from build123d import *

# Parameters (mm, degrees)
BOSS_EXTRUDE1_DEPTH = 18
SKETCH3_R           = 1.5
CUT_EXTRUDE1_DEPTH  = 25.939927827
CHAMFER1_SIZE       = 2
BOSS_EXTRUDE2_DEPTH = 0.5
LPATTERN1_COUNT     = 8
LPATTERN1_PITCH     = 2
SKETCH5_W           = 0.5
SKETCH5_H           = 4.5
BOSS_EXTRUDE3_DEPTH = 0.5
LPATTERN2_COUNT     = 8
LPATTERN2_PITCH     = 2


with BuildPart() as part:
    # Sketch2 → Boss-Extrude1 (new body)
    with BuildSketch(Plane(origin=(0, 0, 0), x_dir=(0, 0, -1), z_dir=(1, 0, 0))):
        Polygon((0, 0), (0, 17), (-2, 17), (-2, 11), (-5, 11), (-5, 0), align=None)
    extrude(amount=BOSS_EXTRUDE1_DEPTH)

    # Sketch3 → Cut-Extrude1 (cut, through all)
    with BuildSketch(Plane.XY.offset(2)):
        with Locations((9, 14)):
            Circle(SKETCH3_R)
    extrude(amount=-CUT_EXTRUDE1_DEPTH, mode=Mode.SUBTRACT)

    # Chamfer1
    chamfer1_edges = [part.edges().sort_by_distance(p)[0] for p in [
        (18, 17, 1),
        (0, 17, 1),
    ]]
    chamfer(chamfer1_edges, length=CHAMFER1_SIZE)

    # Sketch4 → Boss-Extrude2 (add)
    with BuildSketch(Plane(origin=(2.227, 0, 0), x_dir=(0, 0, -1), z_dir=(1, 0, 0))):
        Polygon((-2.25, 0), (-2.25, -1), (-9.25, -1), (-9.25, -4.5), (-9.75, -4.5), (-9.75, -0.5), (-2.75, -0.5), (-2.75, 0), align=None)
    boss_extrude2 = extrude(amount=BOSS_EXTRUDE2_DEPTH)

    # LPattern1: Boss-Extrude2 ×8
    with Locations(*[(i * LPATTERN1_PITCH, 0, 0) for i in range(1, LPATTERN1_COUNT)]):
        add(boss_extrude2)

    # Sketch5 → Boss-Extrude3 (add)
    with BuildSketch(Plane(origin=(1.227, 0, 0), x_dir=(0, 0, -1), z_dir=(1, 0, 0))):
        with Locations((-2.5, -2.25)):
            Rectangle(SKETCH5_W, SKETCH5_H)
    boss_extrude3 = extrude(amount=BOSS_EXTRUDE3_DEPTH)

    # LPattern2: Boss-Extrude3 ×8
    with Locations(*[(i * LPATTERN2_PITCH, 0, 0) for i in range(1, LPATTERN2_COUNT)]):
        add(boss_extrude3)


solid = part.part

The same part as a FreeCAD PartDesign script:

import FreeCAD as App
import Part
import Sketcher
Q = App.Units.Quantity


def edges_at(feature, points):
    """Names of the edges that pass closest to the given points."""
    edges = feature.Shape.Edges
    near = lambda p: min(range(len(edges)), key=lambda i: edges[i].distToShape(Part.Vertex(*p))[0])
    return sorted({f"Edge{near(p) + 1}" for p in points})


def add_polygon(sketch, points):
    """Adds a closed chain of lines whose ends are joined by coincident constraints."""
    first, n = sketch.GeometryCount, len(points)
    for a, b in zip(points, points[1:] + points[:1]):
        sketch.addGeometry(Part.LineSegment(App.Vector(*a, 0), App.Vector(*b, 0)), False)
    for i in range(n):
        sketch.addConstraint(Sketcher.Constraint("Coincident", first + i, 2, first + (i + 1) % n, 1))

doc = App.newDocument("Part")
body = doc.addObject("PartDesign::Body", "Body")

sketch1 = body.newObject("Sketcher::SketchObject", "Sketch")
sketch1.AttachmentSupport = (doc.getObject("YZ_Plane"), [""])
sketch1.MapMode = "FlatFace"
add_polygon(sketch1, [(0, 0), (17, 0), (17, 2), (11, 2), (11, 5), (0, 5)])
sketch1.addConstraint(Sketcher.Constraint("Horizontal", 0))
sketch1.addConstraint(Sketcher.Constraint("Vertical", 1))
sketch1.addConstraint(Sketcher.Constraint("Horizontal", 2))
sketch1.addConstraint(Sketcher.Constraint("Vertical", 3))
sketch1.addConstraint(Sketcher.Constraint("Horizontal", 4))
sketch1.addConstraint(Sketcher.Constraint("Vertical", 5))
sketch1.addConstraint(Sketcher.Constraint("Coincident", 5, 2, -1, 1))
sketch1.addConstraint(Sketcher.Constraint("DistanceX", 0, 1, 0, 2, Q("17 mm")))
sketch1.addConstraint(Sketcher.Constraint("DistanceX", 2, 2, 2, 1, Q("6 mm")))
sketch1.addConstraint(Sketcher.Constraint("DistanceY", 1, 1, 1, 2, Q("2 mm")))
sketch1.addConstraint(Sketcher.Constraint("DistanceY", 3, 1, 3, 2, Q("3 mm")))
pad1 = body.newObject("PartDesign::Pad", "Pad")
pad1.Profile = sketch1
pad1.Length = 18

sketch2 = body.newObject("Sketcher::SketchObject", "Sketch001")
sketch2.AttachmentSupport = (doc.getObject("XY_Plane"), [""])
sketch2.MapMode = "FlatFace"
sketch2.AttachmentOffset = App.Placement(App.Vector(0, 0, 2), App.Rotation())
sketch2.addGeometry(Part.Circle(App.Vector(9, 14, 0), App.Vector(0, 0, 1), 1.5), False)
sketch2.addConstraint(Sketcher.Constraint("Diameter", 0, Q("3 mm")))
sketch2.addConstraint(Sketcher.Constraint("DistanceX", -1, 1, 0, 3, Q("9 mm")))
sketch2.addConstraint(Sketcher.Constraint("DistanceY", -1, 1, 0, 3, Q("14 mm")))
pocket1 = body.newObject("PartDesign::Pocket", "Pocket")
pocket1.Profile = sketch2
pocket1.Type = "ThroughAll"
doc.recompute()

chamfer = body.newObject("PartDesign::Chamfer", "Chamfer")
chamfer.Base = (pocket1, edges_at(pocket1, [(18, 17, 1), (0, 17, 1)]))
chamfer.Size = 2

sketch3 = body.newObject("Sketcher::SketchObject", "Sketch002")
sketch3.AttachmentSupport = (doc.getObject("YZ_Plane"), [""])
sketch3.MapMode = "FlatFace"
sketch3.AttachmentOffset = App.Placement(App.Vector(0, 0, 2.227), App.Rotation())
add_polygon(sketch3, [(-1, 2.25), (0, 2.25), (0, 2.75), (-0.5, 2.75), (-0.5, 9.75), (-4.5, 9.75), (-4.5, 9.25), (-1, 9.25)])
sketch3.addConstraint(Sketcher.Constraint("Horizontal", 0))
sketch3.addConstraint(Sketcher.Constraint("Vertical", 1))
sketch3.addConstraint(Sketcher.Constraint("Horizontal", 2))
sketch3.addConstraint(Sketcher.Constraint("Vertical", 3))
sketch3.addConstraint(Sketcher.Constraint("Horizontal", 4))
sketch3.addConstraint(Sketcher.Constraint("Vertical", 5))
sketch3.addConstraint(Sketcher.Constraint("Horizontal", 6))
sketch3.addConstraint(Sketcher.Constraint("Vertical", 7))
sketch3.addConstraint(Sketcher.Constraint("PointOnObject", 0, 2, -2))
sketch3.addConstraint(Sketcher.Constraint("Equal", 2, 1))
sketch3.addConstraint(Sketcher.Constraint("Equal", 1, 5))
sketch3.addConstraint(Sketcher.Constraint("DistanceX", 0, 1, 0, 2, Q("1 mm")))
sketch3.addConstraint(Sketcher.Constraint("DistanceX", 4, 2, 4, 1, Q("4 mm")))
sketch3.addConstraint(Sketcher.Constraint("DistanceY", 3, 1, 3, 2, Q("7 mm")))
sketch3.addConstraint(Sketcher.Constraint("DistanceX", 2, 2, 2, 1, Q("0.5 mm")))
sketch3.addConstraint(Sketcher.Constraint("DistanceY", -1, 1, 0, 2, Q("2.25 mm")))
pad2 = body.newObject("PartDesign::Pad", "Pad001")
pad2.Profile = sketch3
pad2.Length = 0.5
doc.recompute()

linearpattern = body.newObject("PartDesign::LinearPattern", "LinearPattern")
linearpattern.Originals = [pad2]
linearpattern.Direction = (doc.getObject("X_Axis"), [""])
linearpattern.Mode = "offset"
linearpattern.Offset = 2
linearpattern.Occurrences = 8
body.Tip = linearpattern

sketch4 = body.newObject("Sketcher::SketchObject", "Sketch003")
sketch4.AttachmentSupport = (doc.getObject("YZ_Plane"), [""])
sketch4.MapMode = "FlatFace"
sketch4.AttachmentOffset = App.Placement(App.Vector(0, 0, 1.227), App.Rotation())
add_polygon(sketch4, [(0, 2.75), (-4.5, 2.75), (-4.5, 2.25), (0, 2.25)])
sketch4.addConstraint(Sketcher.Constraint("Horizontal", 0))
sketch4.addConstraint(Sketcher.Constraint("Vertical", 1))
sketch4.addConstraint(Sketcher.Constraint("Horizontal", 2))
sketch4.addConstraint(Sketcher.Constraint("Vertical", 3))
sketch4.addConstraint(Sketcher.Constraint("PointOnObject", 2, 2, -2))
sketch4.addConstraint(Sketcher.Constraint("DistanceX", 0, 2, 0, 1, Q("4.5 mm")))
sketch4.addConstraint(Sketcher.Constraint("DistanceY", 1, 2, 1, 1, Q("0.5 mm")))
sketch4.addConstraint(Sketcher.Constraint("DistanceY", -1, 1, 0, 2, Q("2.75 mm")))
pad3 = body.newObject("PartDesign::Pad", "Pad002")
pad3.Profile = sketch4
pad3.Length = 0.5
doc.recompute()

linearpattern2 = body.newObject("PartDesign::LinearPattern", "LinearPattern001")
linearpattern2.Originals = [pad3]
linearpattern2.Direction = (doc.getObject("X_Axis"), [""])
linearpattern2.Mode = "offset"
linearpattern2.Offset = 2
linearpattern2.Occurrences = 8
body.Tip = linearpattern2

doc.recompute()
